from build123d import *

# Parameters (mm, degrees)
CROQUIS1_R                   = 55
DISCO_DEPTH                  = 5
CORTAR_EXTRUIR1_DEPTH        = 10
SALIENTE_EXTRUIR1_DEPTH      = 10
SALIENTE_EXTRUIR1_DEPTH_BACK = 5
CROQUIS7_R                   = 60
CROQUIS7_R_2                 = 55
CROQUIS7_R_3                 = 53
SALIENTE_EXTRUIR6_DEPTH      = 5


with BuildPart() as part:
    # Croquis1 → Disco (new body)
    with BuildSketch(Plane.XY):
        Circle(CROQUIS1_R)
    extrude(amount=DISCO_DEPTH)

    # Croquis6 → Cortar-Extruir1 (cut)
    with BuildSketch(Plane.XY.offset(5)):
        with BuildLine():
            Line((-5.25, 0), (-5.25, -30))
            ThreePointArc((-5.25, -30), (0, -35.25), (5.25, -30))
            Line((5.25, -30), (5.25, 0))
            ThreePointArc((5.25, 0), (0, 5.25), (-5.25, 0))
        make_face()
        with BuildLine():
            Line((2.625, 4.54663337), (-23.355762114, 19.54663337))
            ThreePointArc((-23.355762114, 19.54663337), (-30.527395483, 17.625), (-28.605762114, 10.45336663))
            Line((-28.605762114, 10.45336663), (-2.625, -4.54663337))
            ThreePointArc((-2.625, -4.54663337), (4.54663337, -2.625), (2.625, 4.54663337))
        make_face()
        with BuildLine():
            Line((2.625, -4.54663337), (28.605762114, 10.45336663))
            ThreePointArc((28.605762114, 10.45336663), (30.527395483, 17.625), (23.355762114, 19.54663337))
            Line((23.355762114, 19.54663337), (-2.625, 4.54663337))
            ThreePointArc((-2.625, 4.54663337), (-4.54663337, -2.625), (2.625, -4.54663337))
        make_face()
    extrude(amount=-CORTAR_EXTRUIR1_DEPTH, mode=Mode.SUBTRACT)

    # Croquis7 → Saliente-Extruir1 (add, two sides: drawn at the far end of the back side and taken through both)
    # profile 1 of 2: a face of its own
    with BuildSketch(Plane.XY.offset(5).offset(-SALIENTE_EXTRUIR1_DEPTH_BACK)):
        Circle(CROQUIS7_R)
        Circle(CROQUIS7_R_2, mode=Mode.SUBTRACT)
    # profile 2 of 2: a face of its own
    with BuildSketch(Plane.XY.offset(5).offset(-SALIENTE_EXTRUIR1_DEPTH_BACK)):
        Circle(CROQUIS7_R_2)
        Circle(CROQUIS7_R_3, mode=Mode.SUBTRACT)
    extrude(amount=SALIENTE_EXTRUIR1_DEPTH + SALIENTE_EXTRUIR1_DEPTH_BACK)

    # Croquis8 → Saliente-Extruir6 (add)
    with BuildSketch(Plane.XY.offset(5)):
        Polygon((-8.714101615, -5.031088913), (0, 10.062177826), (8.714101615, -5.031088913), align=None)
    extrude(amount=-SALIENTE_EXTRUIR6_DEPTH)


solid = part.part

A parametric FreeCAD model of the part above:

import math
import FreeCAD as App
import Part
import Sketcher

V = App.Vector
Q = App.Units.Quantity


def add_polygon(sketch, points):
    """Adds a closed chain of lines whose ends are joined by coincident constraints."""
    first, n = sketch.GeometryCount, len(points)
    for a, b in zip(points, points[1:] + points[:1]):
        sketch.addGeometry(Part.LineSegment(App.Vector(*a, 0), App.Vector(*b, 0)), False)
    for i in range(n):
        sketch.addConstraint(Sketcher.Constraint("Coincident", first + i, 2, first + (i + 1) % n, 1))

doc = App.newDocument("Part")
body = doc.addObject("PartDesign::Body", "Body")

sketch1 = doc.addObject("Sketcher::SketchObject", "Sketch")
body.addObject(sketch1)
sketch1.AttachmentSupport = (doc.XY_Plane, [""])
sketch1.MapMode = "FlatFace"
sketch1.addGeometry(Part.Circle(V(0, 0, 0), V(0, 0, 1), 55), False)
sketch1.addConstraint([
    Sketcher.Constraint("Coincident", 0, 3, -1, 1),
    Sketcher.Constraint("Diameter", 0, 110.0),
])
pad1 = doc.addObject("PartDesign::Pad", "Pad")
body.addObject(pad1)
pad1.Profile = sketch1
pad1.Length = 5

sketch2 = doc.addObject("Sketcher::SketchObject", "Sketch001")
body.addObject(sketch2)
sketch2.AttachmentSupport = (doc.XY_Plane, [""])
sketch2.MapMode = "FlatFace"
sketch2.AttachmentOffset = App.Placement(V(0, 0, 5), App.Rotation())
sketch2.addGeometry([
    Part.LineSegment(V(5, -3, 0), V(29, 10, 0)),
    Part.ArcOfCircle(Part.Circle(V(26, 15, 0), V(0, 0, 1), 5), math.radians(-60), math.radians(120)),
    Part.LineSegment(V(23, 20, 0), V(0, 6, 0)),
    Part.LineSegment(V(0, 6, 0), V(-23, 20, 0)),
    Part.ArcOfCircle(Part.Circle(V(-26, 15, 0), V(0, 0, 1), 5), math.radians(60), math.radians(240)),
    Part.LineSegment(V(-29, 10, 0), V(-5, -3, 0)),
    Part.LineSegment(V(-5, -3, 0), V(-5, -30, 0)),
    Part.ArcOfCircle(Part.Circle(V(0, -30, 0), V(0, 0, 1), 5), math.radians(180), math.radians(360)),
    Part.LineSegment(V(5, -30, 0), V(5, -3, 0)),
], False)
sketch2.addConstraint([
    Sketcher.Constraint("Tangent", 0, 2, 1, 1),
    Sketcher.Constraint("Tangent", 1, 2, 2, 1),
    Sketcher.Constraint("Coincident", 2, 2, 3, 1),
    Sketcher.Constraint("Tangent", 3, 2, 4, 1),
    Sketcher.Constraint("Tangent", 4, 2, 5, 1),
    Sketcher.Constraint("Coincident", 5, 2, 6, 1),
    Sketcher.Constraint("Tangent", 6, 2, 7, 1),
    Sketcher.Constraint("Tangent", 7, 2, 8, 1),
    Sketcher.Constraint("Coincident", 8, 2, 0, 1),
    Sketcher.Constraint("Vertical", 6),
    Sketcher.Constraint("Vertical", 8),
    Sketcher.Constraint("Equal", 1, 4),
    Sketcher.Constraint("Equal", 4, 7),
    Sketcher.Constraint("Symmetric", 1, 3, 4, 3, -2),
    Sketcher.Constraint("Symmetric", 5, 2, 8, 2, -2),
    Sketcher.Constraint("PointOnObject", 2, 2, -2),
    Sketcher.Constraint("Parallel", 0, 2),
    Sketcher.Constraint("Equal", 0, 2),
    Sketcher.Constraint("Radius", 1, 5.25),
    Sketcher.Constraint("DistanceY", -1, 1, 1, 3, 15.0),
    Sketcher.Constraint("DistanceY", 7, 3, -1, 1, 30.0),
    Sketcher.Constraint("DistanceY", 6, 2, 6, 1, 26.968911),
])
pocket1 = doc.addObject("PartDesign::Pocket", "Pocket")
body.addObject(pocket1)
pocket1.Profile = sketch2
pocket1.Length = 10

sketch3 = doc.addObject("Sketcher::SketchObject", "Sketch002")
body.addObject(sketch3)
sketch3.AttachmentSupport = (doc.XY_Plane, [""])
sketch3.MapMode = "FlatFace"
sketch3.AttachmentOffset = App.Placement(V(0, 0, 5), App.Rotation())
sketch3.addGeometry([
    Part.Circle(V(0, 0, 0), V(0, 0, 1), 60),
    Part.Circle(V(0, 0, 0), V(0, 0, 1), 53),
], False)
sketch3.addConstraint([
    Sketcher.Constraint("Coincident", 0, 3, -1, 1),
    Sketcher.Constraint("Coincident", 1, 3, -1, 1),
    Sketcher.Constraint("Diameter", 0, 120.0),
    Sketcher.Constraint("Diameter", 1, 106.0),
])
pad2 = doc.addObject("PartDesign::Pad", "Pad001")
body.addObject(pad2)
pad2.Profile = sketch3
pad2.Type = "TwoLengths"
pad2.Length = 10
pad2.Length2 = 5

sketch4 = doc.addObject("Sketcher::SketchObject", "Sketch003")
body.addObject(sketch4)
sketch4.AttachmentSupport = (doc.XY_Plane, [""])
sketch4.MapMode = "FlatFace"
sketch4.AttachmentOffset = App.Placement(V(0, 0, 5), App.Rotation())
add_polygon(sketch4, [(0, 10), (-9, -5), (9, -5)])
sketch4.addConstraint([
    Sketcher.Constraint("Horizontal", 1),
    Sketcher.Constraint("PointOnObject", 2, 2, -2),
    Sketcher.Constraint("Equal", 0, 2),
    Sketcher.Constraint("Angle", 0, Q("-120 deg")),
    Sketcher.Constraint("DistanceX", 0, 2, -1, 1, 8.714102),
    Sketcher.Constraint("DistanceY", 0, 2, -1, 1, 5.031089),
])
pad3 = doc.addObject("PartDesign::Pad", "Pad002")
body.addObject(pad3)
pad3.Profile = sketch4
pad3.Length = 5
pad3.Reversed = True

doc.recompute()
